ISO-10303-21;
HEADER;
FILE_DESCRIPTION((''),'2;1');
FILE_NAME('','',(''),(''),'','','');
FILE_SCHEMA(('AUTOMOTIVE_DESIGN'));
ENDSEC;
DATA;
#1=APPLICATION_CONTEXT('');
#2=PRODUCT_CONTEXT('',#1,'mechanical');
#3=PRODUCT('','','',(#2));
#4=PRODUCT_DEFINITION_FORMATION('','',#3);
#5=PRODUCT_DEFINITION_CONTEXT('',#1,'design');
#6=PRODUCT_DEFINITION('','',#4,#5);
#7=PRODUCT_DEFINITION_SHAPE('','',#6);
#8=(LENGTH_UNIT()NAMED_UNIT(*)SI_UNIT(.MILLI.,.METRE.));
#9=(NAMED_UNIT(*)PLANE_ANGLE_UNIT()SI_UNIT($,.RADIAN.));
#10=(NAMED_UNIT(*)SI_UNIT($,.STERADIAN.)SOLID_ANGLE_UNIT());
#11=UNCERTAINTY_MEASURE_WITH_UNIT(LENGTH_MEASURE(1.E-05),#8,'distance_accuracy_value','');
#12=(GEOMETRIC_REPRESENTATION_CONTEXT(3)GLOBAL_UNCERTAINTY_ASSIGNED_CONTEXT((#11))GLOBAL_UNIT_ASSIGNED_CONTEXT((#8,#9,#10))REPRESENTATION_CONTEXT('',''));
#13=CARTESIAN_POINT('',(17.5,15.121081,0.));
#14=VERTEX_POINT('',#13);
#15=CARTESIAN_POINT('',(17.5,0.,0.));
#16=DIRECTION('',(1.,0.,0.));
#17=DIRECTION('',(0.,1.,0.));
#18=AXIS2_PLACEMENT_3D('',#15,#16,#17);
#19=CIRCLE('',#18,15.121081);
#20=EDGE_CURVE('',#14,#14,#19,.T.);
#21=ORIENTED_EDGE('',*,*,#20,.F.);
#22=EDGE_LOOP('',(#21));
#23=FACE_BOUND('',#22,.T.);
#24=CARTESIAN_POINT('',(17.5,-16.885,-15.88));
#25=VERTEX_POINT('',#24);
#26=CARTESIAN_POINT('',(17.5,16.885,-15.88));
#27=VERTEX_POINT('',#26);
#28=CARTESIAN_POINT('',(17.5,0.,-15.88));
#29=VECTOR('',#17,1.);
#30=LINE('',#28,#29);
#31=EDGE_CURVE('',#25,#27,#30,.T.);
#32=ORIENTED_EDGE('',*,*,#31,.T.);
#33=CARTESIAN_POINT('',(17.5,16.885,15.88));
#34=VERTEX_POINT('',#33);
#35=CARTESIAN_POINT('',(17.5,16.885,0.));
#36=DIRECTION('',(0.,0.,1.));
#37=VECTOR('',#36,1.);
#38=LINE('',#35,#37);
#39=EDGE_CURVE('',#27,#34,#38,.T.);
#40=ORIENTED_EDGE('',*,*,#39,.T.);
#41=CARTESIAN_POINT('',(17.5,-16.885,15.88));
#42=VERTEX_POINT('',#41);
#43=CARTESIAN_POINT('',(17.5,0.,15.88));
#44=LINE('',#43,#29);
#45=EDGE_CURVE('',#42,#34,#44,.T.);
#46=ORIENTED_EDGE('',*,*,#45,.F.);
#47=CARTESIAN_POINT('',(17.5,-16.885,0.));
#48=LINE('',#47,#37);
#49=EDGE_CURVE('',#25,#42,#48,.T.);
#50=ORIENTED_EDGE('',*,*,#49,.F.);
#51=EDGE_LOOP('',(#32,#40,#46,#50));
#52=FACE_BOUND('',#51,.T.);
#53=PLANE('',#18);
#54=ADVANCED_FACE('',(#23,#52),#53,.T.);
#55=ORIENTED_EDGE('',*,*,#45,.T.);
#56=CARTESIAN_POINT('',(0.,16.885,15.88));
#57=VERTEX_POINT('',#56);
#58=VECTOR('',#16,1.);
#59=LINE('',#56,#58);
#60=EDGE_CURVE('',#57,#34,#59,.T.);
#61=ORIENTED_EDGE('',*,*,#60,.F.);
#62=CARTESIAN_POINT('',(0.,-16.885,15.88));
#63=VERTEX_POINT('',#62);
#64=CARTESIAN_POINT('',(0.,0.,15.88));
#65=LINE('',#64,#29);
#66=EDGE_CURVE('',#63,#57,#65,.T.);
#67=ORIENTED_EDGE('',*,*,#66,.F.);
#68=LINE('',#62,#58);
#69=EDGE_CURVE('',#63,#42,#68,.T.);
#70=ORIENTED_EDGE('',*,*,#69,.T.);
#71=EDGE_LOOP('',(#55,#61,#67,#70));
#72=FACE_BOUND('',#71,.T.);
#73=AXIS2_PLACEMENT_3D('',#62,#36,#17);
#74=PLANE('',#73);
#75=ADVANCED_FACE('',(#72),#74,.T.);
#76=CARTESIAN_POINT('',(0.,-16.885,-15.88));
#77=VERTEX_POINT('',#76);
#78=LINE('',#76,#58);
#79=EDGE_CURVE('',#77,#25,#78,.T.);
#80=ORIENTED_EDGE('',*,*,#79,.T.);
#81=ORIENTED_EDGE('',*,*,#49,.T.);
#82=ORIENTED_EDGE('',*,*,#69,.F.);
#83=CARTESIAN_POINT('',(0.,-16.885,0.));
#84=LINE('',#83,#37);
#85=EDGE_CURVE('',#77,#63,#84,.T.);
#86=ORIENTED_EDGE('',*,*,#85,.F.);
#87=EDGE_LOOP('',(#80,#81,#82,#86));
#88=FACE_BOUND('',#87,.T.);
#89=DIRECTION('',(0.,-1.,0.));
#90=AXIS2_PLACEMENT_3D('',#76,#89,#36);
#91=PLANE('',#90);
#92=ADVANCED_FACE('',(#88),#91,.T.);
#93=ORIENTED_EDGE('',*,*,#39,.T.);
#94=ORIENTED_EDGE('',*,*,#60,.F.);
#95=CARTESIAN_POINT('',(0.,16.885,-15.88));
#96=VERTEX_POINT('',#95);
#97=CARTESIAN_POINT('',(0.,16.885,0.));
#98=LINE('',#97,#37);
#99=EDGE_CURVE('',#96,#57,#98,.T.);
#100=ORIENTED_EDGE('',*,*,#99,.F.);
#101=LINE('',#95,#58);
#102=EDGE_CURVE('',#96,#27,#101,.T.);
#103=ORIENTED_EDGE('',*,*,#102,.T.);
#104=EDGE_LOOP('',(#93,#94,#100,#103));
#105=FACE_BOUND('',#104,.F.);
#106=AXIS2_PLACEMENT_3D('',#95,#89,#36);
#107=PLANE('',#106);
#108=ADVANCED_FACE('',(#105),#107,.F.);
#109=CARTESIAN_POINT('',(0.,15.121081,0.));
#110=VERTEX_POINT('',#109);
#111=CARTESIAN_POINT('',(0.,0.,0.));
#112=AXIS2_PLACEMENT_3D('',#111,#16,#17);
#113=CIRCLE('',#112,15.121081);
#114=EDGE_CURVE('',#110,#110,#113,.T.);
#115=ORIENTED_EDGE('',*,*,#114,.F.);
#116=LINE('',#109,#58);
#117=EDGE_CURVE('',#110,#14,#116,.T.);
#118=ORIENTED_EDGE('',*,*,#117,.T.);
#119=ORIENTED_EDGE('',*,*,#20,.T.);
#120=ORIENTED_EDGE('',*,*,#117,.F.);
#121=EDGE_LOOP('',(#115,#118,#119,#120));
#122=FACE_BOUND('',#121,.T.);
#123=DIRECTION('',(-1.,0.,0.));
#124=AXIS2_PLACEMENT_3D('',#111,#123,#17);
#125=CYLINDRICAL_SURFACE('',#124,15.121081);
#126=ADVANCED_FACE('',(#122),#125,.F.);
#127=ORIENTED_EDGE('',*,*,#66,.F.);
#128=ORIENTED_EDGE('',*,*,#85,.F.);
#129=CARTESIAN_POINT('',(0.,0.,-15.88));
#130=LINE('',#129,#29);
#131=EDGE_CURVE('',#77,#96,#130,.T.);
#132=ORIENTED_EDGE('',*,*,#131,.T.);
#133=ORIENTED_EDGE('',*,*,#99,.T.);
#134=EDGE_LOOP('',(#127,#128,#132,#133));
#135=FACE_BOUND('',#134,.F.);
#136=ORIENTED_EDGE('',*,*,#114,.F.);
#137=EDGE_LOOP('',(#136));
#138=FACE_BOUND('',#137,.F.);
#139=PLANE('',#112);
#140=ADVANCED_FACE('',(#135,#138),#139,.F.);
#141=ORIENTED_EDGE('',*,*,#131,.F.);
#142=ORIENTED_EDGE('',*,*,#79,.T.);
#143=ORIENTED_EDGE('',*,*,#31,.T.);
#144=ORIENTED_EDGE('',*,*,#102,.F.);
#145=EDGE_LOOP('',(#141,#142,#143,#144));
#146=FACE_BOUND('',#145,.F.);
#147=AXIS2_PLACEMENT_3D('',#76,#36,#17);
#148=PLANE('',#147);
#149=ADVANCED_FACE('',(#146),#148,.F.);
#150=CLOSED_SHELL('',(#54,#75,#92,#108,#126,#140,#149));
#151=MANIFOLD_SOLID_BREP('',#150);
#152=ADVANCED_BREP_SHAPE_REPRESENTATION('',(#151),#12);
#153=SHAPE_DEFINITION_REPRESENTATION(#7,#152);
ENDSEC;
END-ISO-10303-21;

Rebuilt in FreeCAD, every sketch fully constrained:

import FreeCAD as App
import Part
import Sketcher

V = App.Vector

doc = App.newDocument("Part")
body = doc.addObject("PartDesign::Body", "Body")

# Sketch on YZ plane
sketch1 = body.newObject("Sketcher::SketchObject", "Sketch")
sketch1.AttachmentSupport = (doc.getObject("YZ_Plane"), [""])
sketch1.MapMode = "FlatFace"
sketch1.addGeometry(Part.LineSegment(V(-17, 16, 0), V(-17, -16, 0)), False)
sketch1.addGeometry(Part.LineSegment(V(-17, -16, 0), V(17, -16, 0)), False)
sketch1.addGeometry(Part.LineSegment(V(17, -16, 0), V(17, 16, 0)), False)
sketch1.addGeometry(Part.LineSegment(V(17, 16, 0), V(-17, 16, 0)), False)
sketch1.addGeometry(Part.Circle(V(0, 0, 0), V(0, 0, 1), 15), False)
sketch1.addConstraint(Sketcher.Constraint("Coincident", 0, 2, 1, 1))
sketch1.addConstraint(Sketcher.Constraint("Coincident", 1, 2, 2, 1))
sketch1.addConstraint(Sketcher.Constraint("Coincident", 2, 2, 3, 1))
sketch1.addConstraint(Sketcher.Constraint("Coincident", 3, 2, 0, 1))
sketch1.addConstraint(Sketcher.Constraint("Vertical", 0))
sketch1.addConstraint(Sketcher.Constraint("Horizontal", 1))
sketch1.addConstraint(Sketcher.Constraint("Vertical", 2))
sketch1.addConstraint(Sketcher.Constraint("Horizontal", 3))
sketch1.addConstraint(Sketcher.Constraint("Coincident", 4, 3, -1, 1))
sketch1.addConstraint(Sketcher.Constraint("Symmetric", 0, 2, 2, 2, -1, 1))
sketch1.addConstraint(Sketcher.Constraint("DistanceX", 1, 1, 1, 2, 33.77))
sketch1.addConstraint(Sketcher.Constraint("DistanceY", 0, 2, 0, 1, 31.76))
sketch1.addConstraint(Sketcher.Constraint("Diameter", 4, 30.242162))
pad1 = body.newObject("PartDesign::Pad", "Pad")
pad1.Profile = sketch1
pad1.Length = 17.5

doc.recompute()
